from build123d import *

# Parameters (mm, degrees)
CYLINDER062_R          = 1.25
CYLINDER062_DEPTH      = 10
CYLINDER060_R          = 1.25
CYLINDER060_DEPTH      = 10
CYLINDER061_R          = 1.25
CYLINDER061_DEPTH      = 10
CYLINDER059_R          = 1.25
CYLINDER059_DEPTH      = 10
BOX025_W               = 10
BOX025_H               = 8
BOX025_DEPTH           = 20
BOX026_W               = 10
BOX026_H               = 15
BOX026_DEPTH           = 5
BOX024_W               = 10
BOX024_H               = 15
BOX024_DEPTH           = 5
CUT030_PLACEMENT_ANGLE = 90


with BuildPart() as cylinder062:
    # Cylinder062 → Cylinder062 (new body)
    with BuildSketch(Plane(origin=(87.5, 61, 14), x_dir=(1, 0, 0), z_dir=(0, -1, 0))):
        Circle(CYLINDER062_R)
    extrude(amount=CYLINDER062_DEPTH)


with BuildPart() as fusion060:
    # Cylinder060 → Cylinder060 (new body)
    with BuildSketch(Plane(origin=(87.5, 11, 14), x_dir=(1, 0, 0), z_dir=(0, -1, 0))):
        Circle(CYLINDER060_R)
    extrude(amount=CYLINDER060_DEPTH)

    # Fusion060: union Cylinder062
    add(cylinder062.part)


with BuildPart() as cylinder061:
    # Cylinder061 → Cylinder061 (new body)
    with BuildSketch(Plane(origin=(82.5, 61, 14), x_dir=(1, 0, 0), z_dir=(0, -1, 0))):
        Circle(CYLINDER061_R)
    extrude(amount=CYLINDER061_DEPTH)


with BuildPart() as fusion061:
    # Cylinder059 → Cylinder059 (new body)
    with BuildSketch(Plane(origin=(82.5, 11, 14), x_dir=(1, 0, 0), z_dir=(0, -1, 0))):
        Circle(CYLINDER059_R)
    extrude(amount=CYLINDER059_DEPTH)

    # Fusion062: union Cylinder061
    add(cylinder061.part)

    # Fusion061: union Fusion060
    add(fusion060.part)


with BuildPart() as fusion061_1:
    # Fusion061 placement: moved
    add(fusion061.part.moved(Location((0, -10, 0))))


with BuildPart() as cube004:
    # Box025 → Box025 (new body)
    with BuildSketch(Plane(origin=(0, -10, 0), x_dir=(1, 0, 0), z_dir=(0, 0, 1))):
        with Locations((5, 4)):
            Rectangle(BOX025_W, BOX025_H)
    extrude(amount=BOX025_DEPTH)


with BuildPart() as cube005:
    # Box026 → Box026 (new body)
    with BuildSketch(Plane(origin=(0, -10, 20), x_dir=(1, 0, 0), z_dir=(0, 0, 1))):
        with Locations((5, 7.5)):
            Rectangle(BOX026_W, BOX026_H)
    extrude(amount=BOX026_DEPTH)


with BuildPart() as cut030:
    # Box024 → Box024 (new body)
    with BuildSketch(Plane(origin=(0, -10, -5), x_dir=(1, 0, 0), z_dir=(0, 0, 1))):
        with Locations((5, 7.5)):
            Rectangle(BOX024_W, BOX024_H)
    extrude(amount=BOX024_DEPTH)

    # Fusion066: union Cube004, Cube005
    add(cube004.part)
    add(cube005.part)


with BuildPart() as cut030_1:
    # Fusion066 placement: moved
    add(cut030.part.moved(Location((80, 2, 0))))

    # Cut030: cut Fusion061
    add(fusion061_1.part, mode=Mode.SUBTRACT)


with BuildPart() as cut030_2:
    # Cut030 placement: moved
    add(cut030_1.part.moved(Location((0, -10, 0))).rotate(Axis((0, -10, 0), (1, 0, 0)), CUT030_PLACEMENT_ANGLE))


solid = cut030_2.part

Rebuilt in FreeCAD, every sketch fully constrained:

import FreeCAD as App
import Part
import Sketcher

V = App.Vector
Q = App.Units.Quantity

doc = App.newDocument("Part")
body = doc.addObject("PartDesign::Body", "Body")

sketch1 = doc.addObject("Sketcher::SketchObject", "Sketch")
body.addObject(sketch1)
sketch1.AttachmentSupport = (doc.XZ_Plane, [""])
sketch1.MapMode = "FlatFace"
sketch1.AttachmentOffset = App.Placement(V(0, 0, -61), App.Rotation())
sketch1.addGeometry(Part.Circle(V(87.5, 14, 0), V(0, 0, 1), 1.2), False)
sketch1.addConstraint(Sketcher.Constraint("Diameter", 0, Q("2.5 mm")))
sketch1.addConstraint(Sketcher.Constraint("DistanceY", -1, 1, 0, 3, Q("14 mm")))
sketch1.addConstraint(Sketcher.Constraint("DistanceX", -1, 1, 0, 3, Q("87.5 mm")))
pad1 = doc.addObject("PartDesign::Pad", "Pad")
body.addObject(pad1)
pad1.Profile = sketch1
pad1.Length = 10
body2 = doc.addObject("PartDesign::Body", "Body001")
body2.AllowCompound = True

sketch2 = doc.addObject("Sketcher::SketchObject", "Sketch001")
body2.addObject(sketch2)
sketch2.AttachmentSupport = (doc.getObject("XZ_Plane001"), [""])
sketch2.MapMode = "FlatFace"
sketch2.AttachmentOffset = App.Placement(V(0, 0, -11), App.Rotation())
sketch2.addGeometry(Part.Circle(V(87.5, 14, 0), V(0, 0, 1), 1.2), False)
sketch2.addConstraint(Sketcher.Constraint("Diameter", 0, Q("2.5 mm")))
sketch2.addConstraint(Sketcher.Constraint("DistanceY", -1, 1, 0, 3, Q("14 mm")))
sketch2.addConstraint(Sketcher.Constraint("DistanceX", -1, 1, 0, 3, Q("87.5 mm")))
pad2 = doc.addObject("PartDesign::Pad", "Pad001")
body2.addObject(pad2)
pad2.Profile = sketch2
pad2.Length = 10
doc.recompute()

boolean = doc.addObject("PartDesign::Boolean", "Boolean")
body2.addObject(boolean)
boolean.Type = "Fuse"
boolean.addObjects([body])
body3 = doc.addObject("PartDesign::Body", "Body002")

sketch3 = doc.addObject("Sketcher::SketchObject", "Sketch002")
body3.addObject(sketch3)
sketch3.AttachmentSupport = (doc.getObject("XZ_Plane002"), [""])
sketch3.MapMode = "FlatFace"
sketch3.AttachmentOffset = App.Placement(V(0, 0, -61), App.Rotation())
sketch3.addGeometry(Part.Circle(V(82.5, 14, 0), V(0, 0, 1), 1.2), False)
sketch3.addConstraint(Sketcher.Constraint("Diameter", 0, Q("2.5 mm")))
sketch3.addConstraint(Sketcher.Constraint("DistanceY", -1, 1, 0, 3, Q("14 mm")))
sketch3.addConstraint(Sketcher.Constraint("DistanceX", -1, 1, 0, 3, Q("82.5 mm")))
pad3 = doc.addObject("PartDesign::Pad", "Pad002")
body3.addObject(pad3)
pad3.Profile = sketch3
pad3.Length = 10
body4 = doc.addObject("PartDesign::Body", "Body003")
body4.AllowCompound = True

sketch4 = doc.addObject("Sketcher::SketchObject", "Sketch003")
body4.addObject(sketch4)
sketch4.AttachmentSupport = (doc.getObject("XZ_Plane003"), [""])
sketch4.MapMode = "FlatFace"
sketch4.AttachmentOffset = App.Placement(V(0, 0, -11), App.Rotation())
sketch4.addGeometry(Part.Circle(V(82.5, 14, 0), V(0, 0, 1), 1.2), False)
sketch4.addConstraint(Sketcher.Constraint("Diameter", 0, Q("2.5 mm")))
sketch4.addConstraint(Sketcher.Constraint("DistanceY", -1, 1, 0, 3, Q("14 mm")))
sketch4.addConstraint(Sketcher.Constraint("DistanceX", -1, 1, 0, 3, Q("82.5 mm")))
pad4 = doc.addObject("PartDesign::Pad", "Pad003")
body4.addObject(pad4)
pad4.Profile = sketch4
pad4.Length = 10
doc.recompute()

boolean2 = doc.addObject("PartDesign::Boolean", "Boolean001")
body4.addObject(boolean2)
boolean2.Type = "Fuse"
boolean2.addObjects([body3])
doc.recompute()

boolean3 = doc.addObject("PartDesign::Boolean", "Boolean002")
body4.addObject(boolean3)
boolean3.Type = "Fuse"
boolean3.addObjects([body2])
body5 = doc.addObject("PartDesign::Body", "Body004")
body5.AllowCompound = True
doc.recompute()

body4.Placement = App.Placement(V(0, -10, 0), App.Rotation(V(0, 0, 1), 0))
boolean4 = doc.addObject("PartDesign::Boolean", "Boolean003")
body5.addObject(boolean4)
boolean4.Type = "Fuse"
boolean4.addObjects([body4])
body6 = doc.addObject("PartDesign::Body", "Body005")

sketch5 = doc.addObject("Sketcher::SketchObject", "Sketch004")
body6.addObject(sketch5)
sketch5.AttachmentSupport = (doc.getObject("XY_Plane005"), [""])
sketch5.MapMode = "FlatFace"
sketch5.addGeometry(Part.LineSegment(V(0, -2, 0), V(0, -10, 0)), False)
sketch5.addGeometry(Part.LineSegment(V(0, -10, 0), V(10, -10, 0)), False)
sketch5.addGeometry(Part.LineSegment(V(10, -10, 0), V(10, -2, 0)), False)
sketch5.addGeometry(Part.LineSegment(V(10, -2, 0), V(0, -2, 0)), False)
sketch5.addConstraint(Sketcher.Constraint("Coincident", 0, 2, 1, 1))
sketch5.addConstraint(Sketcher.Constraint("Coincident", 1, 2, 2, 1))
sketch5.addConstraint(Sketcher.Constraint("Coincident", 2, 2, 3, 1))
sketch5.addConstraint(Sketcher.Constraint("Coincident", 3, 2, 0, 1))
sketch5.addConstraint(Sketcher.Constraint("Vertical", 0))
sketch5.addConstraint(Sketcher.Constraint("Horizontal", 1))
sketch5.addConstraint(Sketcher.Constraint("Vertical", 2))
sketch5.addConstraint(Sketcher.Constraint("Horizontal", 3))
sketch5.addConstraint(Sketcher.Constraint("PointOnObject", 0, 2, -2))
sketch5.addConstraint(Sketcher.Constraint("DistanceX", 1, 1, 1, 2, Q("10 mm")))
sketch5.addConstraint(Sketcher.Constraint("DistanceY", 0, 2, 0, 1, Q("8 mm")))
sketch5.addConstraint(Sketcher.Constraint("DistanceY", 0, 2, -1, 1, Q("10 mm")))
pad5 = doc.addObject("PartDesign::Pad", "Pad004")
body6.addObject(pad5)
pad5.Profile = sketch5
pad5.Length = 20
body7 = doc.addObject("PartDesign::Body", "Body006")

sketch6 = doc.addObject("Sketcher::SketchObject", "Sketch005")
body7.addObject(sketch6)
sketch6.AttachmentSupport = (doc.getObject("XY_Plane006"), [""])
sketch6.MapMode = "FlatFace"
sketch6.AttachmentOffset = App.Placement(V(0, 0, 20), App.Rotation())
sketch6.addGeometry(Part.LineSegment(V(0, 5, 0), V(0, -10, 0)), False)
sketch6.addGeometry(Part.LineSegment(V(0, -10, 0), V(10, -10, 0)), False)
sketch6.addGeometry(Part.LineSegment(V(10, -10, 0), V(10, 5, 0)), False)
sketch6.addGeometry(Part.LineSegment(V(10, 5, 0), V(0, 5, 0)), False)
sketch6.addConstraint(Sketcher.Constraint("Coincident", 0, 2, 1, 1))
sketch6.addConstraint(Sketcher.Constraint("Coincident", 1, 2, 2, 1))
sketch6.addConstraint(Sketcher.Constraint("Coincident", 2, 2, 3, 1))
sketch6.addConstraint(Sketcher.Constraint("Coincident", 3, 2, 0, 1))
sketch6.addConstraint(Sketcher.Constraint("Vertical", 0))
sketch6.addConstraint(Sketcher.Constraint("Horizontal", 1))
sketch6.addConstraint(Sketcher.Constraint("Vertical", 2))
sketch6.addConstraint(Sketcher.Constraint("Horizontal", 3))
sketch6.addConstraint(Sketcher.Constraint("PointOnObject", 0, 2, -2))
sketch6.addConstraint(Sketcher.Constraint("DistanceX", 1, 1, 1, 2, Q("10 mm")))
sketch6.addConstraint(Sketcher.Constraint("DistanceY", 0, 2, 0, 1, Q("15 mm")))
sketch6.addConstraint(Sketcher.Constraint("DistanceY", 0, 2, -1, 1, Q("10 mm")))
pad6 = doc.addObject("PartDesign::Pad", "Pad005")
body7.addObject(pad6)
pad6.Profile = sketch6
pad6.Length = 5
body8 = doc.addObject("PartDesign::Body", "Body007")

sketch7 = doc.addObject("Sketcher::SketchObject", "Sketch006")
body8.addObject(sketch7)
sketch7.AttachmentSupport = (doc.getObject("XY_Plane007"), [""])
sketch7.MapMode = "FlatFace"
sketch7.AttachmentOffset = App.Placement(V(0, 0, -5), App.Rotation())
sketch7.addGeometry(Part.LineSegment(V(0, 5, 0), V(0, -10, 0)), False)
sketch7.addGeometry(Part.LineSegment(V(0, -10, 0), V(10, -10, 0)), False)
sketch7.addGeometry(Part.LineSegment(V(10, -10, 0), V(10, 5, 0)), False)
sketch7.addGeometry(Part.LineSegment(V(10, 5, 0), V(0, 5, 0)), False)
sketch7.addConstraint(Sketcher.Constraint("Coincident", 0, 2, 1, 1))
sketch7.addConstraint(Sketcher.Constraint("Coincident", 1, 2, 2, 1))
sketch7.addConstraint(Sketcher.Constraint("Coincident", 2, 2, 3, 1))
sketch7.addConstraint(Sketcher.Constraint("Coincident", 3, 2, 0, 1))
sketch7.addConstraint(Sketcher.Constraint("Vertical", 0))
sketch7.addConstraint(Sketcher.Constraint("Horizontal", 1))
sketch7.addConstraint(Sketcher.Constraint("Vertical", 2))
sketch7.addConstraint(Sketcher.Constraint("Horizontal", 3))
sketch7.addConstraint(Sketcher.Constraint("PointOnObject", 0, 2, -2))
sketch7.addConstraint(Sketcher.Constraint("DistanceX", 1, 1, 1, 2, Q("10 mm")))
sketch7.addConstraint(Sketcher.Constraint("DistanceY", 0, 2, 0, 1, Q("15 mm")))
sketch7.addConstraint(Sketcher.Constraint("DistanceY", 0, 2, -1, 1, Q("10 mm")))
pad7 = doc.addObject("PartDesign::Pad", "Pad006")
body8.addObject(pad7)
pad7.Profile = sketch7
pad7.Length = 5
doc.recompute()

boolean5 = doc.addObject("PartDesign::Boolean", "Boolean004")
body8.addObject(boolean5)
boolean5.Type = "Fuse"
boolean5.addObjects([body6])
doc.recompute()

boolean6 = doc.addObject("PartDesign::Boolean", "Boolean005")
body8.addObject(boolean6)
boolean6.Type = "Fuse"
boolean6.addObjects([body7])
body9 = doc.addObject("PartDesign::Body", "Body008")
doc.recompute()

body8.Placement = App.Placement(V(80, 2, 0), App.Rotation(V(0, 0, 1), 0))
boolean7 = doc.addObject("PartDesign::Boolean", "Boolean006")
body9.addObject(boolean7)
boolean7.Type = "Fuse"
boolean7.addObjects([body8])
doc.recompute()

boolean8 = doc.addObject("PartDesign::Boolean", "Boolean007")
body9.addObject(boolean8)
boolean8.Type = "Cut"
boolean8.addObjects([body5])
body10 = doc.addObject("PartDesign::Body", "Body009")
doc.recompute()

body9.Placement = App.Placement(V(0, -10, 0), App.Rotation(V(1, 0, 0), 90))
boolean9 = doc.addObject("PartDesign::Boolean", "Boolean008")
body10.addObject(boolean9)
boolean9.Type = "Fuse"
boolean9.addObjects([body9])

doc.recompute()
